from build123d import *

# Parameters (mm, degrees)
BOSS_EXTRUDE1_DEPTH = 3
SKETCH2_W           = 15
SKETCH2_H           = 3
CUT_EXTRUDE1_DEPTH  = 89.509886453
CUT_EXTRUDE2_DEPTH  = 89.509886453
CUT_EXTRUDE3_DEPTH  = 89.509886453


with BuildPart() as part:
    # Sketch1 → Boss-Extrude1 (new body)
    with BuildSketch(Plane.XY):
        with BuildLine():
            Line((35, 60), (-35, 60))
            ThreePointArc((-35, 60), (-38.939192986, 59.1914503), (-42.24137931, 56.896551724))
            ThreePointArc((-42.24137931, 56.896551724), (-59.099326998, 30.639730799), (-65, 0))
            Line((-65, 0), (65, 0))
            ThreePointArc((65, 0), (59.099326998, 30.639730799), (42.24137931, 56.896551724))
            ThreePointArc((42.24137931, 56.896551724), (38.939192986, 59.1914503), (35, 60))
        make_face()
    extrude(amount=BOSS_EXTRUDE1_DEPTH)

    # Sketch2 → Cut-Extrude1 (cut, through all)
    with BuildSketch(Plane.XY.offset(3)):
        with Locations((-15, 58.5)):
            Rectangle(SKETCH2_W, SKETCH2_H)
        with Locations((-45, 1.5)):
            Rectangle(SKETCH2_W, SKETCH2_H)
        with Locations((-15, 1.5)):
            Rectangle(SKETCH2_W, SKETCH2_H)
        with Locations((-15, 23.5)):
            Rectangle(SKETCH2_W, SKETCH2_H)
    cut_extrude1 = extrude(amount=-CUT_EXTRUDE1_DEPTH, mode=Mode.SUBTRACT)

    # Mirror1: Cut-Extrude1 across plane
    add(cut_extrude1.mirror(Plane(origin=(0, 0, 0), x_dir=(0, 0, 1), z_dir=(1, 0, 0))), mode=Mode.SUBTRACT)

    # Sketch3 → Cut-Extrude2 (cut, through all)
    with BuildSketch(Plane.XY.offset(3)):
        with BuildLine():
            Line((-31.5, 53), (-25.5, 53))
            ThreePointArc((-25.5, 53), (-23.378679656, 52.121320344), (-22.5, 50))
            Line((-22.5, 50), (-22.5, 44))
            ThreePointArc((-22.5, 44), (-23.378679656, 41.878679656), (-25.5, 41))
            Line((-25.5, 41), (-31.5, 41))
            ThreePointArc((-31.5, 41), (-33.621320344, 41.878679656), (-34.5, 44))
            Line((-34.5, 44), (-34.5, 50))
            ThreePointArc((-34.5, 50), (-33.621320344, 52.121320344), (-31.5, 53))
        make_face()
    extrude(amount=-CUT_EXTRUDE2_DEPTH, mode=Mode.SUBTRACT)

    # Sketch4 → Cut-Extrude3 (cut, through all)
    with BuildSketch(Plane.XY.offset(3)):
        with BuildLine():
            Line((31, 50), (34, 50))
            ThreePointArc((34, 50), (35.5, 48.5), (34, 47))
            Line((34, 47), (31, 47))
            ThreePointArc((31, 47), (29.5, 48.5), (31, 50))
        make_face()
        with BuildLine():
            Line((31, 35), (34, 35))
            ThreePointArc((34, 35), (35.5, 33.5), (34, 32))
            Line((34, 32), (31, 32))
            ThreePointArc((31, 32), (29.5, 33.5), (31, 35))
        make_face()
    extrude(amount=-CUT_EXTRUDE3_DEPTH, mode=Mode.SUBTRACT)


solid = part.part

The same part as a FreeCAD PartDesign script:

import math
import FreeCAD as App
import Part
import Sketcher
from FreeCAD import Vector


def add_polygon(sketch, points):
    """Adds a closed chain of lines whose ends are joined by coincident constraints."""
    first, n = sketch.GeometryCount, len(points)
    for a, b in zip(points, points[1:] + points[:1]):
        sketch.addGeometry(Part.LineSegment(App.Vector(*a, 0), App.Vector(*b, 0)), False)
    for i in range(n):
        sketch.addConstraint(Sketcher.Constraint("Coincident", first + i, 2, first + (i + 1) % n, 1))

doc = App.newDocument("Part")
params = doc.addObject("Spreadsheet::Sheet", "Params")
for row, (alias, value) in enumerate([
    ("sketch1_radius", "10 mm"),
    ("sketch1_radius2", "82.5 mm"),
    ("sketch1_width", "70 mm"),
    ("sketch1_width2", "130 mm"),
    ("pad1_length", "3 mm"),
    ("sketch2_width", "15 mm"),
    ("sketch2_height", "3 mm"),
    ("sketch3_radius", "3 mm"),
    ("sketch3_width", "6 mm"),
    ("sketch4_radius", "1.5 mm"),
    ("sketch4_width", "3 mm"),
], start=1):
    params.set(f"A{row}", alias)
    params.set(f"B{row}", "=" + value)
    params.setAlias(f"B{row}", alias)

body = doc.addObject("PartDesign::Body", "Body")

# Sketch on XY plane
sketch1 = body.newObject("Sketcher::SketchObject", "Sketch")
sketch1.AttachmentSupport = (doc.getObject("XY_Plane"), [""])
sketch1.MapMode = "FlatFace"
sketch1.addGeometry([
    Part.LineSegment(Vector(35, 60, 0), Vector(-35, 60, 0)),  # 0
    Part.ArcOfCircle(Part.Circle(Vector(-35, 50, 0), Vector(0, 0, 1), 10), math.radians(90), math.radians(136.397181)),  # 1
    Part.ArcOfCircle(Part.Circle(Vector(17.5, 0, 0), Vector(0, 0, 1), 82.5), math.radians(136.397181), math.radians(180)),  # 2
    Part.LineSegment(Vector(-65, 0, 0), Vector(65, 0, 0)),  # 3
    Part.ArcOfCircle(Part.Circle(Vector(-17.5, 0, 0), Vector(0, 0, 1), 82.5), math.radians(0), math.radians(43.602819)),  # 4
    Part.ArcOfCircle(Part.Circle(Vector(35, 50, 0), Vector(0, 0, 1), 10), math.radians(43.602819), math.radians(90)),  # 5
], False)
sketch1.addConstraint([
    Sketcher.Constraint("Tangent", 0, 2, 1, 1),
    Sketcher.Constraint("Tangent", 1, 2, 2, 1),
    Sketcher.Constraint("Coincident", 2, 2, 3, 1),
    Sketcher.Constraint("Coincident", 3, 2, 4, 1),
    Sketcher.Constraint("Tangent", 4, 2, 5, 1),
    Sketcher.Constraint("Tangent", 5, 2, 0, 1),
    Sketcher.Constraint("Horizontal", 0),
    Sketcher.Constraint("Horizontal", 3),
    Sketcher.Constraint("Equal", 2, 4),
    Sketcher.Constraint("Equal", 1, 5),
    Sketcher.Constraint("Symmetric", 2, 3, 4, 3, -1, 1),
    Sketcher.Constraint("PointOnObject", 2, 3, -1),
    Sketcher.Constraint("PointOnObject", 2, 2, -1),
    Sketcher.Constraint("Radius", 1, 10.0),
    Sketcher.Constraint("Radius", 2, 82.5),
    Sketcher.Constraint("DistanceX", 0, 2, 0, 1, 70.0),
    Sketcher.Constraint("DistanceX", 3, 1, 3, 2, 130.0),
])
sketch1.setExpression("Constraints[13]", "Params.sketch1_radius")
sketch1.setExpression("Constraints[14]", "Params.sketch1_radius2")
sketch1.setExpression("Constraints[15]", "Params.sketch1_width")
sketch1.setExpression("Constraints[16]", "Params.sketch1_width2")
pad1 = body.newObject("PartDesign::Pad", "Pad")
pad1.Profile = sketch1
pad1.setExpression("Length", "Params.pad1_length")

# Sketch on XY plane
sketch2 = body.newObject("Sketcher::SketchObject", "Sketch001")
sketch2.AttachmentSupport = (doc.getObject("XY_Plane"), [""])
sketch2.MapMode = "FlatFace"
sketch2.AttachmentOffset = App.Placement(Vector(0, 0, 3), App.Rotation())
add_polygon(sketch2, [(-22.5, 60), (-22.5, 57), (-7.5, 57), (-7.5, 60)])  # lines 0-3
add_polygon(sketch2, [(-52.5, 3), (-52.5, 0), (-37.5, 0), (-37.5, 3)])  # lines 4-7
add_polygon(sketch2, [(-22.5, 3), (-22.5, 0), (-7.5, 0), (-7.5, 3)])  # lines 8-11
add_polygon(sketch2, [(-22.5, 25), (-22.5, 22), (-7.5, 22), (-7.5, 25)])  # lines 12-15
sketch2.addConstraint([
    Sketcher.Constraint("Vertical", 0),
    Sketcher.Constraint("Horizontal", 1),
    Sketcher.Constraint("Vertical", 2),
    Sketcher.Constraint("Horizontal", 3),
    Sketcher.Constraint("Vertical", 4),
    Sketcher.Constraint("Horizontal", 5),
    Sketcher.Constraint("Vertical", 6),
    Sketcher.Constraint("Horizontal", 7),
    Sketcher.Constraint("Vertical", 8),
    Sketcher.Constraint("Horizontal", 9),
    Sketcher.Constraint("Vertical", 10),
    Sketcher.Constraint("Horizontal", 11),
    Sketcher.Constraint("Vertical", 12),
    Sketcher.Constraint("Horizontal", 13),
    Sketcher.Constraint("Vertical", 14),
    Sketcher.Constraint("Horizontal", 15),
    Sketcher.Constraint("PointOnObject", 4, 2, -1),
    Sketcher.Constraint("PointOnObject", 8, 2, -1),
    Sketcher.Constraint("Horizontal", 7, 2, 10, 2),
    Sketcher.Constraint("Vertical", 3, 2, 8, 2),
    Sketcher.Constraint("Vertical", 2, 2, 9, 2),
    Sketcher.Constraint("Vertical", 11, 2, 12, 2),
    Sketcher.Constraint("Vertical", 10, 2, 13, 2),
    Sketcher.Constraint("Equal", 3, 5),
    Sketcher.Constraint("Equal", 2, 4),
    Sketcher.Constraint("Equal", 10, 12),
    Sketcher.Constraint("DistanceX", 1, 1, 1, 2, 15.0),
    Sketcher.Constraint("DistanceY", 0, 2, 0, 1, 3.0),
    Sketcher.Constraint("DistanceY", -1, 1, 0, 2, 57.0),
    Sketcher.Constraint("DistanceY", -1, 1, 12, 2, 22.0),
    Sketcher.Constraint("DistanceX", 4, 2, 0, 2, 30.0),
    Sketcher.Constraint("DistanceX", 0, 2, -1, 1, 22.5),
])
sketch2.setExpression("Constraints[42]", "Params.sketch2_width")
sketch2.setExpression("Constraints[43]", "Params.sketch2_height")
pocket1 = body.newObject("PartDesign::Pocket", "Pocket")
pocket1.Profile = sketch2
pocket1.Type = "ThroughAll"
doc.recompute()

mirrored = body.newObject("PartDesign::Mirrored", "Mirrored")
mirrored.Originals = [pocket1]
mirrored.MirrorPlane = (doc.getObject("YZ_Plane"), [""])
body.Tip = mirrored

# Sketch on XY plane
sketch3 = body.newObject("Sketcher::SketchObject", "Sketch002")
sketch3.AttachmentSupport = (doc.getObject("XY_Plane"), [""])
sketch3.MapMode = "FlatFace"
sketch3.AttachmentOffset = App.Placement(Vector(0, 0, 3), App.Rotation())
sketch3.addGeometry([
    Part.LineSegment(Vector(-25.5, 53, 0), Vector(-31.5, 53, 0)),  # 0
    Part.ArcOfCircle(Part.Circle(Vector(-31.5, 50, 0), Vector(0, 0, 1), 3), math.radians(90), math.radians(180)),  # 1
    Part.LineSegment(Vector(-34.5, 50, 0), Vector(-34.5, 44, 0)),  # 2
    Part.ArcOfCircle(Part.Circle(Vector(-31.5, 44, 0), Vector(0, 0, 1), 3), math.radians(180), math.radians(270)),  # 3
    Part.LineSegment(Vector(-31.5, 41, 0), Vector(-25.5, 41, 0)),  # 4
    Part.ArcOfCircle(Part.Circle(Vector(-25.5, 44, 0), Vector(0, 0, 1), 3), math.radians(-90), math.radians(0)),  # 5
    Part.LineSegment(Vector(-22.5, 44, 0), Vector(-22.5, 50, 0)),  # 6
    Part.ArcOfCircle(Part.Circle(Vector(-25.5, 50, 0), Vector(0, 0, 1), 3), math.radians(0), math.radians(90)),  # 7
], False)
sketch3.addConstraint([
    Sketcher.Constraint("Tangent", 0, 2, 1, 1),
    Sketcher.Constraint("Tangent", 1, 2, 2, 1),
    Sketcher.Constraint("Tangent", 2, 2, 3, 1),
    Sketcher.Constraint("Tangent", 3, 2, 4, 1),
    Sketcher.Constraint("Tangent", 4, 2, 5, 1),
    Sketcher.Constraint("Tangent", 5, 2, 6, 1),
    Sketcher.Constraint("Tangent", 6, 2, 7, 1),
    Sketcher.Constraint("Tangent", 7, 2, 0, 1),
    Sketcher.Constraint("Horizontal", 0),
    Sketcher.Constraint("Vertical", 2),
    Sketcher.Constraint("Horizontal", 4),
    Sketcher.Constraint("Vertical", 6),
    Sketcher.Constraint("Equal", 1, 3),
    Sketcher.Constraint("Equal", 3, 5),
    Sketcher.Constraint("Equal", 5, 7),
    Sketcher.Constraint("Equal", 4, 2),
    Sketcher.Constraint("Radius", 1, 3.0),
    Sketcher.Constraint("DistanceX", 0, 2, 0, 1, 6.0),
    Sketcher.Constraint("DistanceY", -1, 1, 1, 3, 50.0),
    Sketcher.Constraint("DistanceX", 1, 3, -1, 1, 31.5),
])
sketch3.setExpression("Constraints[16]", "Params.sketch3_radius")
sketch3.setExpression("Constraints[17]", "Params.sketch3_width")
pocket2 = body.newObject("PartDesign::Pocket", "Pocket001")
pocket2.Profile = sketch3
pocket2.Type = "ThroughAll"

# Sketch on XY plane
sketch4 = body.newObject("Sketcher::SketchObject", "Sketch003")
sketch4.AttachmentSupport = (doc.getObject("XY_Plane"), [""])
sketch4.MapMode = "FlatFace"
sketch4.AttachmentOffset = App.Placement(Vector(0, 0, 3), App.Rotation())
sketch4.addGeometry([
    Part.LineSegment(Vector(34, 50, 0), Vector(31, 50, 0)),  # 0
    Part.ArcOfCircle(Part.Circle(Vector(31, 48.5, 0), Vector(0, 0, 1), 1.5), math.radians(90), math.radians(270)),  # 1
    Part.LineSegment(Vector(31, 47, 0), Vector(34, 47, 0)),  # 2
    Part.ArcOfCircle(Part.Circle(Vector(34, 48.5, 0), Vector(0, 0, 1), 1.5), math.radians(-90), math.radians(90)),  # 3
    Part.LineSegment(Vector(34, 35, 0), Vector(31, 35, 0)),  # 4
    Part.ArcOfCircle(Part.Circle(Vector(31, 33.5, 0), Vector(0, 0, 1), 1.5), math.radians(90), math.radians(270)),  # 5
    Part.LineSegment(Vector(31, 32, 0), Vector(34, 32, 0)),  # 6
    Part.ArcOfCircle(Part.Circle(Vector(34, 33.5, 0), Vector(0, 0, 1), 1.5), math.radians(-90), math.radians(90)),  # 7
], False)
sketch4.addConstraint([
    Sketcher.Constraint("Tangent", 0, 2, 1, 1),
    Sketcher.Constraint("Tangent", 1, 2, 2, 1),
    Sketcher.Constraint("Tangent", 2, 2, 3, 1),
    Sketcher.Constraint("Tangent", 3, 2, 0, 1),
    Sketcher.Constraint("Tangent", 4, 2, 5, 1),
    Sketcher.Constraint("Tangent", 5, 2, 6, 1),
    Sketcher.Constraint("Tangent", 6, 2, 7, 1),
    Sketcher.Constraint("Tangent", 7, 2, 4, 1),
    Sketcher.Constraint("Horizontal", 0),
    Sketcher.Constraint("Horizontal", 2),
    Sketcher.Constraint("Horizontal", 4),
    Sketcher.Constraint("Horizontal", 6),
    Sketcher.Constraint("Equal", 3, 5),
    Sketcher.Constraint("Vertical", 1, 3, 5, 3),
    Sketcher.Constraint("Vertical", 3, 3, 7, 3),
    Sketcher.Constraint("Radius", 1, 1.5),
    Sketcher.Constraint("DistanceX", 0, 2, 0, 1, 3.0),
    Sketcher.Constraint("DistanceX", -1, 1, 1, 3, 31.0),
    Sketcher.Constraint("DistanceY", -1, 1, 0, 2, 50.0),
    Sketcher.Constraint("DistanceY", -1, 1, 4, 2, 35.0),
])
sketch4.setExpression("Constraints[15]", "Params.sketch4_radius")
sketch4.setExpression("Constraints[16]", "Params.sketch4_width")
pocket3 = body.newObject("PartDesign::Pocket", "Pocket002")
pocket3.Profile = sketch4
pocket3.Type = "ThroughAll"

doc.recompute()
